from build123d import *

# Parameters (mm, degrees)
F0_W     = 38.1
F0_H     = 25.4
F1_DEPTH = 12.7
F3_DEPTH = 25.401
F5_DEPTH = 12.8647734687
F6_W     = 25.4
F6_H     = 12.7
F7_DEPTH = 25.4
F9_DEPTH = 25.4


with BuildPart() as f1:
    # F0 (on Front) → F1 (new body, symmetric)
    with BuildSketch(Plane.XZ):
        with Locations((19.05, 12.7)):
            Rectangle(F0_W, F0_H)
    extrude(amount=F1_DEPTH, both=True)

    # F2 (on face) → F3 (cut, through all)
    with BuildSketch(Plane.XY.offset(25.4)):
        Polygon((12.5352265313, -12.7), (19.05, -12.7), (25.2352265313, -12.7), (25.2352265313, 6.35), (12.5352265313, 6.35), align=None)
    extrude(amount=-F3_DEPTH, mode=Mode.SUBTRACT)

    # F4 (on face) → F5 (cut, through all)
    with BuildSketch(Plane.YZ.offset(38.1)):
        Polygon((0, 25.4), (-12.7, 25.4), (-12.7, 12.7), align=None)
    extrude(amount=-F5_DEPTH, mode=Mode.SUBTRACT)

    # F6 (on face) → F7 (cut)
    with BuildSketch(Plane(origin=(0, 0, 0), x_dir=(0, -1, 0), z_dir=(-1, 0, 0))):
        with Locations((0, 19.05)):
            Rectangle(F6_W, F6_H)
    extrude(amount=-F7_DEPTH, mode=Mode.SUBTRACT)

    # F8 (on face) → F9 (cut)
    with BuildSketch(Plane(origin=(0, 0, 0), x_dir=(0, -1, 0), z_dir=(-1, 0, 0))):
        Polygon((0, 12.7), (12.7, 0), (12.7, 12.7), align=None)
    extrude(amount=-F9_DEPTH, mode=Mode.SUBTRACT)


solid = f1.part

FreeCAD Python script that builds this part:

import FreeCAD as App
import Part
import Sketcher

V = App.Vector
Q = App.Units.Quantity


def add_polygon(sketch, points):
    """Adds a closed chain of lines whose ends are joined by coincident constraints."""
    first, n = sketch.GeometryCount, len(points)
    for a, b in zip(points, points[1:] + points[:1]):
        sketch.addGeometry(Part.LineSegment(App.Vector(*a, 0), App.Vector(*b, 0)), False)
    for i in range(n):
        sketch.addConstraint(Sketcher.Constraint("Coincident", first + i, 2, first + (i + 1) % n, 1))

doc = App.newDocument("Part")
params = doc.addObject("Spreadsheet::Sheet", "Params")
for row, (alias, value) in enumerate([
    ("sketch1_height", "1 in"),
    ("sketch1_width", "1.5 in"),
    ("pad1_length", "1 in"),
    ("sketch2_width", "0.5 in"),
    ("sketch2_height", "0.75 in"),
    ("sketch3_width", "0.5 in"),
    ("pocket2_length", "12.864773 mm"),
    ("sketch4_width", "1 in"),
    ("sketch4_height", "0.5 in"),
    ("pocket3_length", "1 in"),
    ("sketch5_width", "0.5 in"),
    ("pocket4_length", "1 in"),
], start=1):
    params.set(f"A{row}", alias)
    params.set(f"B{row}", "=" + value)
    params.setAlias(f"B{row}", alias)

body = doc.addObject("PartDesign::Body", "Body")

sketch1 = doc.addObject("Sketcher::SketchObject", "Sketch")
body.addObject(sketch1)
sketch1.AttachmentSupport = (doc.XZ_Plane, [""])
sketch1.MapMode = "FlatFace"
add_polygon(sketch1, [(0, 25), (0, 0), (38, 0), (38, 25)])
sketch1.addConstraint(Sketcher.Constraint("Vertical", 0))
sketch1.addConstraint(Sketcher.Constraint("Horizontal", 1))
sketch1.addConstraint(Sketcher.Constraint("Vertical", 2))
sketch1.addConstraint(Sketcher.Constraint("Horizontal", 3))
sketch1.addConstraint(Sketcher.Constraint("Coincident", 0, 2, -1, 1))
sketch1.addConstraint(Sketcher.Constraint("DistanceY", 0, 2, 0, 1, Q("1 in")))
sketch1.addConstraint(Sketcher.Constraint("DistanceX", 1, 1, 1, 2, Q("1.5 in")))
sketch1.setExpression("Constraints[9]", "Params.sketch1_height")
sketch1.setExpression("Constraints[10]", "Params.sketch1_width")
pad1 = doc.addObject("PartDesign::Pad", "Pad")
body.addObject(pad1)
pad1.Profile = sketch1
pad1.setExpression("Length", "Params.pad1_length")
pad1.Midplane = True

sketch2 = doc.addObject("Sketcher::SketchObject", "Sketch001")
body.addObject(sketch2)
sketch2.AttachmentSupport = (doc.XY_Plane, [""])
sketch2.MapMode = "FlatFace"
sketch2.AttachmentOffset = App.Placement(V(0, 0, 1 * 25.4), App.Rotation())
add_polygon(sketch2, [(13, -13), (25, -13), (25, 6), (13, 6)])
sketch2.addConstraint(Sketcher.Constraint("Horizontal", 0))
sketch2.addConstraint(Sketcher.Constraint("Vertical", 1))
sketch2.addConstraint(Sketcher.Constraint("Horizontal", 2))
sketch2.addConstraint(Sketcher.Constraint("Vertical", 3))
sketch2.addConstraint(Sketcher.Constraint("DistanceX", 0, 1, 0, 2, Q("0.5 in")))
sketch2.addConstraint(Sketcher.Constraint("DistanceY", 1, 1, 1, 2, Q("0.75 in")))
sketch2.addConstraint(Sketcher.Constraint("DistanceY", 0, 2, -1, 1, Q("0.5 in")))
sketch2.addConstraint(Sketcher.Constraint("DistanceX", -1, 1, 0, 2, Q("25.235227 mm")))
sketch2.setExpression("Constraints[8]", "Params.sketch2_width")
sketch2.setExpression("Constraints[9]", "Params.sketch2_height")
pocket1 = doc.addObject("PartDesign::Pocket", "Pocket")
body.addObject(pocket1)
pocket1.Profile = sketch2
pocket1.Type = "ThroughAll"

sketch3 = doc.addObject("Sketcher::SketchObject", "Sketch002")
body.addObject(sketch3)
sketch3.AttachmentSupport = (doc.YZ_Plane, [""])
sketch3.MapMode = "FlatFace"
sketch3.AttachmentOffset = App.Placement(V(0, 0, 1.5 * 25.4), App.Rotation())
add_polygon(sketch3, [(0, 25), (-13, 25), (-13, 13)])
sketch3.addConstraint(Sketcher.Constraint("Horizontal", 0))
sketch3.addConstraint(Sketcher.Constraint("Vertical", 1))
sketch3.addConstraint(Sketcher.Constraint("PointOnObject", 2, 2, -2))
sketch3.addConstraint(Sketcher.Constraint("Equal", 0, 1))
sketch3.addConstraint(Sketcher.Constraint("DistanceX", 0, 2, 0, 1, Q("0.5 in")))
sketch3.addConstraint(Sketcher.Constraint("DistanceY", -1, 1, 0, 2, Q("1 in")))
sketch3.setExpression("Constraints[7]", "Params.sketch3_width")
pocket2 = doc.addObject("PartDesign::Pocket", "Pocket001")
body.addObject(pocket2)
pocket2.Profile = sketch3
pocket2.setExpression("Length", "Params.pocket2_length")

sketch4 = doc.addObject("Sketcher::SketchObject", "Sketch003")
body.addObject(sketch4)
sketch4.AttachmentSupport = (doc.YZ_Plane, [""])
sketch4.MapMode = "FlatFace"
add_polygon(sketch4, [(13, 25), (13, 13), (-13, 13), (-13, 25)])
sketch4.addConstraint(Sketcher.Constraint("Vertical", 0))
sketch4.addConstraint(Sketcher.Constraint("Horizontal", 1))
sketch4.addConstraint(Sketcher.Constraint("Vertical", 2))
sketch4.addConstraint(Sketcher.Constraint("Horizontal", 3))
sketch4.addConstraint(Sketcher.Constraint("DistanceX", 1, 2, 1, 1, Q("1 in")))
sketch4.addConstraint(Sketcher.Constraint("DistanceY", 0, 2, 0, 1, Q("0.5 in")))
sketch4.addConstraint(Sketcher.Constraint("DistanceY", -1, 1, 2, 2, Q("1 in")))
sketch4.addConstraint(Sketcher.Constraint("DistanceX", -1, 1, 0, 2, Q("0.5 in")))
sketch4.setExpression("Constraints[8]", "Params.sketch4_width")
sketch4.setExpression("Constraints[9]", "Params.sketch4_height")
pocket3 = doc.addObject("PartDesign::Pocket", "Pocket002")
body.addObject(pocket3)
pocket3.Profile = sketch4
pocket3.setExpression("Length", "Params.pocket3_length")
pocket3.Reversed = True

sketch5 = doc.addObject("Sketcher::SketchObject", "Sketch004")
body.addObject(sketch5)
sketch5.AttachmentSupport = (doc.YZ_Plane, [""])
sketch5.MapMode = "FlatFace"
add_polygon(sketch5, [(0, 13), (-13, 0), (-13, 13)])
sketch5.addConstraint(Sketcher.Constraint("Vertical", 1))
sketch5.addConstraint(Sketcher.Constraint("Horizontal", 2))
sketch5.addConstraint(Sketcher.Constraint("PointOnObject", 0, 2, -1))
sketch5.addConstraint(Sketcher.Constraint("PointOnObject", 2, 2, -2))
sketch5.addConstraint(Sketcher.Constraint("Equal", 2, 1))
sketch5.addConstraint(Sketcher.Constraint("DistanceX", 2, 1, 2, 2, Q("0.5 in")))
sketch5.setExpression("Constraints[8]", "Params.sketch5_width")
pocket4 = doc.addObject("PartDesign::Pocket", "Pocket003")
body.addObject(pocket4)
pocket4.Profile = sketch5
pocket4.setExpression("Length", "Params.pocket4_length")
pocket4.Reversed = True

doc.recompute()
